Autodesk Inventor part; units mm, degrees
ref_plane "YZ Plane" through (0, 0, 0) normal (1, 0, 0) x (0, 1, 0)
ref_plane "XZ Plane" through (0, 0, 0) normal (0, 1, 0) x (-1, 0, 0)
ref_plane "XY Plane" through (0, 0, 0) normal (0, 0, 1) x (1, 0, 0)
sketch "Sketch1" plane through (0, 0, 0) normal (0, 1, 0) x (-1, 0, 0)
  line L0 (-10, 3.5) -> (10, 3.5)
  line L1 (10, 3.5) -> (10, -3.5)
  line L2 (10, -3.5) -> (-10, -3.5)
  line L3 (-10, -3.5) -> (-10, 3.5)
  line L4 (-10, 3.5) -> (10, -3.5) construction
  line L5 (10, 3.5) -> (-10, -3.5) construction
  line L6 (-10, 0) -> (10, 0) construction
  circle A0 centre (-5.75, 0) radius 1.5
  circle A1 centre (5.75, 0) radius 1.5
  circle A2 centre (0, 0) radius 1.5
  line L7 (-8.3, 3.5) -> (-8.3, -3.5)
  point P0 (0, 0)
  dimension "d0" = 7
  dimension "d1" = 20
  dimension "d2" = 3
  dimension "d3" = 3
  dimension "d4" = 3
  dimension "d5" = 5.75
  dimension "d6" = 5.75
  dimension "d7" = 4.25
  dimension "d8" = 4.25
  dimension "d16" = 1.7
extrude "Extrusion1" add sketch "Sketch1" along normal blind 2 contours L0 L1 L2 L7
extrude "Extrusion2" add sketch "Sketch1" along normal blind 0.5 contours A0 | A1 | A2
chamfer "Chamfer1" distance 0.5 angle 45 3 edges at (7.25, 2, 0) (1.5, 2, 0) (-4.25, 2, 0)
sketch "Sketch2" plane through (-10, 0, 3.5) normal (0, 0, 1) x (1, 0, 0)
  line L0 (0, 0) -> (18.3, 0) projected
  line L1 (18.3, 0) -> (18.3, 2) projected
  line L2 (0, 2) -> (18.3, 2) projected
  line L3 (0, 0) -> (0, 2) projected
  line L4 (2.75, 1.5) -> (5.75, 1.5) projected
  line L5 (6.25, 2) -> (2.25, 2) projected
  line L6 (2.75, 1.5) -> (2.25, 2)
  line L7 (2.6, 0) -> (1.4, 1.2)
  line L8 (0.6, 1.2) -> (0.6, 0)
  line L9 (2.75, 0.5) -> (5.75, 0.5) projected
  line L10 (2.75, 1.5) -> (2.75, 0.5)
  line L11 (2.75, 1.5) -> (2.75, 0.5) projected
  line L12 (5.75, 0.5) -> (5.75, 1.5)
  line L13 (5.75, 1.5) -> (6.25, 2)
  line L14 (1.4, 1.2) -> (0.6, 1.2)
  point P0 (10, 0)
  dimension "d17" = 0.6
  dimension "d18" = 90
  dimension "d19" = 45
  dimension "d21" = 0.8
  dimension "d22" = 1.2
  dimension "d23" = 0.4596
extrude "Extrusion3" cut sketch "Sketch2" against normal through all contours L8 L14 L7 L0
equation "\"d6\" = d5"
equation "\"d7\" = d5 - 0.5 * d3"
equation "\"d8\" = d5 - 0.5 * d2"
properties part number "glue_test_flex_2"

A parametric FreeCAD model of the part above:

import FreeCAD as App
import Part
import Sketcher


def edges_at(feature, points):
    """Names of the edges that pass closest to the given points."""
    edges = feature.Shape.Edges
    near = lambda p: min(range(len(edges)), key=lambda i: edges[i].distToShape(Part.Vertex(*p))[0])
    return sorted({f"Edge{near(p) + 1}" for p in points})

doc = App.newDocument("Part")
body = doc.addObject("PartDesign::Body", "Body")

sketch1 = body.newObject("Sketcher::SketchObject", "Sketch")
sketch1.AttachmentSupport = (doc.getObject("XZ_Plane"), [""])
sketch1.MapMode = "FlatFace"
sketch1.addGeometry([
    Part.LineSegment(App.Vector(-10, 3.5, 0), App.Vector(8.3, 3.5, 0)),
    Part.LineSegment(App.Vector(8.3, 3.5, 0), App.Vector(8.3, -3.5, 0)),
    Part.LineSegment(App.Vector(8.3, -3.5, 0), App.Vector(-10, -3.5, 0)),
    Part.LineSegment(App.Vector(-10, -3.5, 0), App.Vector(-10, 3.5, 0)),
    Part.Circle(App.Vector(5.75, 0, 0), App.Vector(0, 0, 1), 1.5),
    Part.Circle(App.Vector(0, 0, 0), App.Vector(0, 0, 1), 1.5),
    Part.Circle(App.Vector(-5.75, 0, 0), App.Vector(0, 0, 1), 1.5),
], False)
sketch1.addConstraint([
    Sketcher.Constraint("Coincident", 0, 2, 1, 1),
    Sketcher.Constraint("Coincident", 1, 2, 2, 1),
    Sketcher.Constraint("Coincident", 2, 2, 3, 1),
    Sketcher.Constraint("Coincident", 3, 2, 0, 1),
    Sketcher.Constraint("Horizontal", 0),
    Sketcher.Constraint("Vertical", 1),
    Sketcher.Constraint("Horizontal", 2),
    Sketcher.Constraint("Vertical", 3),
    Sketcher.Constraint("Coincident", 5, 3, -1, 1),
    Sketcher.Constraint("Equal", 4, 5),
    Sketcher.Constraint("Equal", 5, 6),
    Sketcher.Constraint("Symmetric", 4, 3, 6, 3, -1, 1),
    Sketcher.Constraint("PointOnObject", 4, 3, -1),
    Sketcher.Constraint("Diameter", 4, 3.0),
    Sketcher.Constraint("DistanceY", 1, 2, 1, 1, 7.0),
    Sketcher.Constraint("DistanceX", -1, 1, 4, 3, 5.75),
    Sketcher.Constraint("DistanceX", 2, 2, 6, 3, 4.25),
    Sketcher.Constraint("DistanceX", 0, 1, 0, 2, 18.3),
    Sketcher.Constraint("DistanceY", -1, 1, 0, 2, 3.5),
])
pad1 = body.newObject("PartDesign::Pad", "Pad")
pad1.Profile = sketch1
pad1.Length = 2
pad1.Reversed = True

sketch2 = body.newObject("Sketcher::SketchObject", "Sketch001")
sketch2.AttachmentSupport = (doc.getObject("XZ_Plane"), [""])
sketch2.MapMode = "FlatFace"
sketch2.addGeometry([
    Part.Circle(App.Vector(5.75, 0, 0), App.Vector(0, 0, 1), 1.5),
    Part.Circle(App.Vector(-5.75, 0, 0), App.Vector(0, 0, 1), 1.5),
    Part.Circle(App.Vector(0, 0, 0), App.Vector(0, 0, 1), 1.5),
], False)
sketch2.addConstraint([
    Sketcher.Constraint("Coincident", 2, 3, -1, 1),
    Sketcher.Constraint("Equal", 0, 1),
    Sketcher.Constraint("Equal", 1, 2),
    Sketcher.Constraint("Symmetric", 0, 3, 1, 3, -1, 1),
    Sketcher.Constraint("PointOnObject", 0, 3, -1),
    Sketcher.Constraint("Diameter", 0, 3.0),
    Sketcher.Constraint("DistanceX", -1, 1, 0, 3, 5.75),
])
pad2 = body.newObject("PartDesign::Pad", "Pad001")
pad2.Profile = sketch2
pad2.Length = 0.5
pad2.Reversed = True
doc.recompute()

chamfer = body.newObject("PartDesign::Chamfer", "Chamfer")
chamfer.Base = (pad2, edges_at(pad2, [(7.25, 2, 0), (1.5, 2, 0), (-4.25, 2, 0)]))
chamfer.Size = 0.5

sketch3 = body.newObject("Sketcher::SketchObject", "Sketch002")
sketch3.AttachmentSupport = (doc.getObject("XY_Plane"), [""])
sketch3.MapMode = "FlatFace"
sketch3.AttachmentOffset = App.Placement(App.Vector(0, 0, 3.5), App.Rotation())
sketch3.addGeometry([
    Part.LineSegment(App.Vector(-9.4, 1.2, 0), App.Vector(-9.4, 0, 0)),
    Part.LineSegment(App.Vector(-9.4, 0, 0), App.Vector(-7.4, 0, 0)),
    Part.LineSegment(App.Vector(-7.4, 0, 0), App.Vector(-8.6, 1.2, 0)),
    Part.LineSegment(App.Vector(-8.6, 1.2, 0), App.Vector(-9.4, 1.2, 0)),
], False)
sketch3.addConstraint([
    Sketcher.Constraint("Coincident", 0, 2, 1, 1),
    Sketcher.Constraint("Coincident", 1, 2, 2, 1),
    Sketcher.Constraint("Coincident", 2, 2, 3, 1),
    Sketcher.Constraint("Coincident", 3, 2, 0, 1),
    Sketcher.Constraint("Vertical", 0),
    Sketcher.Constraint("Horizontal", 1),
    Sketcher.Constraint("Horizontal", 3),
    Sketcher.Constraint("PointOnObject", 0, 2, -1),
    Sketcher.Constraint("DistanceX", 3, 2, 3, 1, 0.8),
    Sketcher.Constraint("DistanceY", 0, 2, 0, 1, 1.2),
    Sketcher.Constraint("DistanceX", 2, 2, 1, 2, 1.2),
    Sketcher.Constraint("DistanceX", 0, 2, -1, 1, 9.4),
])
pocket1 = body.newObject("PartDesign::Pocket", "Pocket")
pocket1.Profile = sketch3
pocket1.Type = "ThroughAll"

doc.recompute()
